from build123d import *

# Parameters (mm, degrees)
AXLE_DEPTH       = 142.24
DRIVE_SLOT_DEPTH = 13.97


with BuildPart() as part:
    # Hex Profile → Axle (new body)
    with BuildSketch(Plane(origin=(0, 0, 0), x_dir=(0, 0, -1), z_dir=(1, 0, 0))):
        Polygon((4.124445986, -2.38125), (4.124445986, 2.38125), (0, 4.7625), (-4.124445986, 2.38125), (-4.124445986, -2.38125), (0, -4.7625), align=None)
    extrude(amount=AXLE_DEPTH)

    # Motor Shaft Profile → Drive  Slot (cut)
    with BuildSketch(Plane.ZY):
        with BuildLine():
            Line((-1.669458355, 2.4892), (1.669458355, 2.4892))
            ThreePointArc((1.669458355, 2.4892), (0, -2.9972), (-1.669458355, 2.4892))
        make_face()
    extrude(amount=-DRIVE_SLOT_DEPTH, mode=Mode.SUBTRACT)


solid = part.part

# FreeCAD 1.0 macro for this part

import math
import FreeCAD as App
import Part
import Sketcher
Q = App.Units.Quantity

doc = App.newDocument("Part")
body = doc.addObject("PartDesign::Body", "Body")

sketch1 = body.newObject("Sketcher::SketchObject", "Sketch")
sketch1.AttachmentSupport = (doc.getObject("YZ_Plane"), [""])
sketch1.MapMode = "FlatFace"
sketch1.addGeometry([
    Part.LineSegment(App.Vector(-2.4, -4.1, 0), App.Vector(2.4, -4.1, 0)),
    Part.LineSegment(App.Vector(2.4, -4.1, 0), App.Vector(4.8, 0, 0)),
    Part.LineSegment(App.Vector(4.8, 0, 0), App.Vector(2.4, 4.1, 0)),
    Part.LineSegment(App.Vector(2.4, 4.1, 0), App.Vector(-2.4, 4.1, 0)),
    Part.LineSegment(App.Vector(-2.4, 4.1, 0), App.Vector(-4.8, 0, 0)),
    Part.LineSegment(App.Vector(-4.8, 0, 0), App.Vector(-2.4, -4.1, 0)),
], False)
sketch1.addConstraint([
    Sketcher.Constraint("Coincident", 0, 2, 1, 1),
    Sketcher.Constraint("Coincident", 1, 2, 2, 1),
    Sketcher.Constraint("Coincident", 2, 2, 3, 1),
    Sketcher.Constraint("Coincident", 3, 2, 4, 1),
    Sketcher.Constraint("Coincident", 4, 2, 5, 1),
    Sketcher.Constraint("Coincident", 5, 2, 0, 1),
    Sketcher.Constraint("Horizontal", 0),
    Sketcher.Constraint("Horizontal", 3),
    Sketcher.Constraint("Symmetric", 0, 2, 3, 2, -1, 1),
    Sketcher.Constraint("Symmetric", 1, 2, 4, 2, -1, 1),
    Sketcher.Constraint("PointOnObject", 1, 2, -1),
    Sketcher.Constraint("Parallel", 2, 5),
    Sketcher.Constraint("Vertical", 0, 2, 2, 2),
    Sketcher.Constraint("Angle", 1, Q("60 deg")),
    Sketcher.Constraint("DistanceX", 0, 1, 0, 2, Q("0.1875 in")),
    Sketcher.Constraint("Distance", 1, Q("0.1875 in")),
])
pad1 = body.newObject("PartDesign::Pad", "Pad")
pad1.Profile = sketch1
pad1.Length = Q("5.6 in")

sketch2 = body.newObject("Sketcher::SketchObject", "Sketch001")
sketch2.AttachmentSupport = (doc.getObject("YZ_Plane"), [""])
sketch2.MapMode = "FlatFace"
sketch2.addGeometry([
    Part.LineSegment(App.Vector(2.5, 1.7, 0), App.Vector(2.5, -1.7, 0)),
    Part.ArcOfCircle(Part.Circle(App.Vector(0, 0, 0), App.Vector(0, 0, 1), 3), math.radians(34), math.radians(326)),
], False)
sketch2.addConstraint([
    Sketcher.Constraint("Coincident", 0, 1, 1, 1),
    Sketcher.Constraint("Coincident", 1, 2, 0, 2),
    Sketcher.Constraint("Vertical", 0),
    Sketcher.Constraint("Coincident", 1, 3, -1, 1),
    Sketcher.Constraint("Radius", 1, Q("0.118 in")),
    Sketcher.Constraint("DistanceX", -1, 1, 0, 1, Q("0.098 in")),
])
pocket1 = body.newObject("PartDesign::Pocket", "Pocket")
pocket1.Profile = sketch2
pocket1.Length = Q("0.55 in")
pocket1.Reversed = True

doc.recompute()
